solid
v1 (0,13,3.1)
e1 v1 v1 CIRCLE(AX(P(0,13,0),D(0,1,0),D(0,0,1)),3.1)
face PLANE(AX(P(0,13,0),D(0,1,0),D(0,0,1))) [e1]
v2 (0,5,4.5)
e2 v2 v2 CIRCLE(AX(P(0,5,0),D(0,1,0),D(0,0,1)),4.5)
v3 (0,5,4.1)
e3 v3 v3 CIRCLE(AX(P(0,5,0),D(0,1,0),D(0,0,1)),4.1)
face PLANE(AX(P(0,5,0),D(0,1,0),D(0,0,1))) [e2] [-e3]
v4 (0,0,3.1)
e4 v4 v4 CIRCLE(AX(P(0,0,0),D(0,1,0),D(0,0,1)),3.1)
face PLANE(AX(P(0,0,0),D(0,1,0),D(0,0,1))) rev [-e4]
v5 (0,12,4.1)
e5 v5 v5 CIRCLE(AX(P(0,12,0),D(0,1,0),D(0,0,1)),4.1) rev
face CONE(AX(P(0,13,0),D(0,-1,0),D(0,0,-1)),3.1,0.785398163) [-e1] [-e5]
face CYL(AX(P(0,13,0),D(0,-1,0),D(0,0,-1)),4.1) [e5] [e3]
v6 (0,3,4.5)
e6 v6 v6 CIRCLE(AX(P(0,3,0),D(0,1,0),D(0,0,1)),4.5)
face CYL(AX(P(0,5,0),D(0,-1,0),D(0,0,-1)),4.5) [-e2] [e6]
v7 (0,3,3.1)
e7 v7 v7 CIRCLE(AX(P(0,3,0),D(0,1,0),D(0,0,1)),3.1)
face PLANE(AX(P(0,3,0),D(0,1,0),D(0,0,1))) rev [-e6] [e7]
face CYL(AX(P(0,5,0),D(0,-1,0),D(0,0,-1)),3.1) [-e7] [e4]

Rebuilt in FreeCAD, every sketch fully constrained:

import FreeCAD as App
import Part
import Sketcher


def edges_at(feature, points):
    """Names of the edges that pass closest to the given points."""
    edges = feature.Shape.Edges
    near = lambda p: min(range(len(edges)), key=lambda i: edges[i].distToShape(Part.Vertex(*p))[0])
    return sorted({f"Edge{near(p) + 1}" for p in points})

doc = App.newDocument("Part")
body = doc.addObject("PartDesign::Body", "Body")

# Sketch on XZ plane
sketch1 = body.newObject("Sketcher::SketchObject", "Sketch")
sketch1.AttachmentSupport = (doc.getObject("XZ_Plane"), [""])
sketch1.MapMode = "FlatFace"
sketch1.addGeometry(Part.Circle(App.Vector(0, 0, 0), App.Vector(0, 0, 1), 3.1), False)
sketch1.addConstraint([
    Sketcher.Constraint("Coincident", 0, 3, -1, 1),
    Sketcher.Constraint("Diameter", 0, 6.2),
])
pad1 = body.newObject("PartDesign::Pad", "Pad")
pad1.Profile = sketch1
pad1.Length = 5
pad1.Reversed = True

# Sketch on XZ plane
sketch2 = body.newObject("Sketcher::SketchObject", "Sketch001")
sketch2.AttachmentSupport = (doc.getObject("XZ_Plane"), [""])
sketch2.MapMode = "FlatFace"
sketch2.AttachmentOffset = App.Placement(App.Vector(0, 0, -3), App.Rotation())
sketch2.addGeometry(Part.Circle(App.Vector(0, 0, 0), App.Vector(0, 0, 1), 4.5), False)
sketch2.addConstraint([
    Sketcher.Constraint("Coincident", 0, 3, -1, 1),
    Sketcher.Constraint("Diameter", 0, 9.0),
])
pad2 = body.newObject("PartDesign::Pad", "Pad001")
pad2.Profile = sketch2
pad2.Length = 2
pad2.Reversed = True

# Sketch on XZ plane
sketch3 = body.newObject("Sketcher::SketchObject", "Sketch002")
sketch3.AttachmentSupport = (doc.getObject("XZ_Plane"), [""])
sketch3.MapMode = "FlatFace"
sketch3.AttachmentOffset = App.Placement(App.Vector(0, 0, -5), App.Rotation())
sketch3.addGeometry(Part.Circle(App.Vector(0, 0, 0), App.Vector(0, 0, 1), 4.1), False)
sketch3.addConstraint([
    Sketcher.Constraint("Coincident", 0, 3, -1, 1),
    Sketcher.Constraint("Diameter", 0, 8.2),
])
pad3 = body.newObject("PartDesign::Pad", "Pad002")
pad3.Profile = sketch3
pad3.Length = 8
pad3.Reversed = True
doc.recompute()

chamfer = body.newObject("PartDesign::Chamfer", "Chamfer")
chamfer.Base = (pad3, edges_at(pad3, [(0, 13, -4.1)]))
chamfer.Size = 1

doc.recompute()
